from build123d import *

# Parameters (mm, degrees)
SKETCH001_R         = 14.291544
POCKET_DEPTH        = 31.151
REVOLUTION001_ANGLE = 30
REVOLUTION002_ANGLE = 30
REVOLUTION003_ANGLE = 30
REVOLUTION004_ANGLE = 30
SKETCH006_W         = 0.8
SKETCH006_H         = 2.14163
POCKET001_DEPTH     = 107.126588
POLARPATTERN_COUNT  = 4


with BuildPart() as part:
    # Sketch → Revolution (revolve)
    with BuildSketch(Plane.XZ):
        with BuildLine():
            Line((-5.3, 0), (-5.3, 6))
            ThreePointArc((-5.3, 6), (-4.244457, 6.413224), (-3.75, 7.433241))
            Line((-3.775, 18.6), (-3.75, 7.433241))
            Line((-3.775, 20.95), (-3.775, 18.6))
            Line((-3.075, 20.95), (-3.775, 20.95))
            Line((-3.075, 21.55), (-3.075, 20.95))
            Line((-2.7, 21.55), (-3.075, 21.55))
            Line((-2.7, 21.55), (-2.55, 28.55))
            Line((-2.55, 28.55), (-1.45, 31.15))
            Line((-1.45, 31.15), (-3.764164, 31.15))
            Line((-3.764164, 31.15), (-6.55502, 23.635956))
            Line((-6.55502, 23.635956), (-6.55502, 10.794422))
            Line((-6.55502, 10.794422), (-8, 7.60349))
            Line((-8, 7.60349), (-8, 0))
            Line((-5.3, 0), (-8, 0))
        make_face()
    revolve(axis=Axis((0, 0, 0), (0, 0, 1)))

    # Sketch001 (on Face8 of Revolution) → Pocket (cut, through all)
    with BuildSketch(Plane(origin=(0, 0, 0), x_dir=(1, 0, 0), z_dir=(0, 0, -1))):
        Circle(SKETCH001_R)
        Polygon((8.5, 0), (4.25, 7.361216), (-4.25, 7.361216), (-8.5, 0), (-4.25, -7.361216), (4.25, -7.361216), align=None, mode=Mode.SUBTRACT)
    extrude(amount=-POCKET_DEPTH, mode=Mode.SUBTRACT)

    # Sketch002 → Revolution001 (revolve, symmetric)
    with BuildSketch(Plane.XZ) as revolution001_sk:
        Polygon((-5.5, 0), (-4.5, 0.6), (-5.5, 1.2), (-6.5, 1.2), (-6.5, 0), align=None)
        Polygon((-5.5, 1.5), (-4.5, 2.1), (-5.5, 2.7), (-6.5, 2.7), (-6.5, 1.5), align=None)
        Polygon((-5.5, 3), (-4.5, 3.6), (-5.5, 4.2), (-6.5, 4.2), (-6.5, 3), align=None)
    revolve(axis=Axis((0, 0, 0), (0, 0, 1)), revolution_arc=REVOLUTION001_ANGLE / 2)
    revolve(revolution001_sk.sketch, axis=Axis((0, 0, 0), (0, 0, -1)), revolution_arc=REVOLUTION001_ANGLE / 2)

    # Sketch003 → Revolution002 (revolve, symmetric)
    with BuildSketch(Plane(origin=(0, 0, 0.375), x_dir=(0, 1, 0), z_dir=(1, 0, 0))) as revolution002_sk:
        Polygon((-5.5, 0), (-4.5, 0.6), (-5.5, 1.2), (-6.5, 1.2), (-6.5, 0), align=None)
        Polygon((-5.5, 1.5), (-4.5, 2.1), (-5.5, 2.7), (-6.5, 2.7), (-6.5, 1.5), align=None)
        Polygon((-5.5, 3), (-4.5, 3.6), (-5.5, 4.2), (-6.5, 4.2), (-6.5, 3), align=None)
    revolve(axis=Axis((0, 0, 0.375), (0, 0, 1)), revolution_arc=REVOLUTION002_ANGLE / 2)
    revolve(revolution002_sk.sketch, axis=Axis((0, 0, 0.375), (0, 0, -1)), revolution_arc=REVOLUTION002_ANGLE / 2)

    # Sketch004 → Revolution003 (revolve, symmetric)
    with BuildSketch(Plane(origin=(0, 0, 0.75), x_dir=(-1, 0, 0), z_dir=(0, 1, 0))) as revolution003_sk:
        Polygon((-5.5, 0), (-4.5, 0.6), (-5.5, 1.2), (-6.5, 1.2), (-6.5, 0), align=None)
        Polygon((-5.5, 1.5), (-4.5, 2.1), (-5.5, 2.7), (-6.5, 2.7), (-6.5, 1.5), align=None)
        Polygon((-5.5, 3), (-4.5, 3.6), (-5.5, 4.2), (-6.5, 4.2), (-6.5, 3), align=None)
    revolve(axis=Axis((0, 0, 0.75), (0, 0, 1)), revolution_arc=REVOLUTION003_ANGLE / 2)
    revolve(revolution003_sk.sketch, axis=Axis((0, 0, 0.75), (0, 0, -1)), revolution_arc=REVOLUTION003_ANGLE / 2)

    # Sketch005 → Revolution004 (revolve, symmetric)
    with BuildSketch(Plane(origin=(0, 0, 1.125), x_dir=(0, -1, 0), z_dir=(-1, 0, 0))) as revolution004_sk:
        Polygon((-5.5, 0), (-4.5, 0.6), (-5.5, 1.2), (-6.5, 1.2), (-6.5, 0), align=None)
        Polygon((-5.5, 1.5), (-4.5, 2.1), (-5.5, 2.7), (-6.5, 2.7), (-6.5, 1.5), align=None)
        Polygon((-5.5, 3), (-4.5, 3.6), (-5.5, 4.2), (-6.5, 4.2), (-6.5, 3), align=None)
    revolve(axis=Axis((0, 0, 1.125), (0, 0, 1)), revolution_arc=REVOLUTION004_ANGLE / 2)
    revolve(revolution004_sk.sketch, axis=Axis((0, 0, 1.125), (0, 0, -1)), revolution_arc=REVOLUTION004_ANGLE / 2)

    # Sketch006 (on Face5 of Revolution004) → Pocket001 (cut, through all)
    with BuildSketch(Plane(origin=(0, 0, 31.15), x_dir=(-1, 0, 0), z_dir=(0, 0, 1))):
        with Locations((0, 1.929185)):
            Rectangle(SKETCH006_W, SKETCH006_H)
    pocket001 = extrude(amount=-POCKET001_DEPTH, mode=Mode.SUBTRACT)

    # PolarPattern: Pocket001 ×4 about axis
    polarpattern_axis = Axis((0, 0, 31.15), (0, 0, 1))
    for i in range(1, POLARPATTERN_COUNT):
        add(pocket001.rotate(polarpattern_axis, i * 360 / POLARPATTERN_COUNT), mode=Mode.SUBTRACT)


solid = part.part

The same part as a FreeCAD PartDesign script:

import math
import FreeCAD as App
import Part
import Sketcher

V = App.Vector
Q = App.Units.Quantity


def add_polygon(sketch, points):
    """Adds a closed chain of lines whose ends are joined by coincident constraints."""
    first, n = sketch.GeometryCount, len(points)
    for a, b in zip(points, points[1:] + points[:1]):
        sketch.addGeometry(Part.LineSegment(App.Vector(*a, 0), App.Vector(*b, 0)), False)
    for i in range(n):
        sketch.addConstraint(Sketcher.Constraint("Coincident", first + i, 2, first + (i + 1) % n, 1))

doc = App.newDocument("Part")
body = doc.addObject("PartDesign::Body", "Body")

# Sketch on XZ plane
sketch1 = body.newObject("Sketcher::SketchObject", "Sketch")
sketch1.AttachmentSupport = (doc.getObject("XZ_Plane"), [""])
sketch1.MapMode = "FlatFace"
sketch1.addGeometry(Part.LineSegment(V(-5.3, 0, 0), V(-5.3, 6, 0)), False)
sketch1.addGeometry(Part.ArcOfCircle(Part.Circle(V(-5.3, 7.55, 0), V(0, 0, 1), 1.55), math.radians(-90), math.radians(-4)), False)
sketch1.addGeometry(Part.LineSegment(V(-3.75, 7.43, 0), V(-3.77, 18.6, 0)), False)
sketch1.addGeometry(Part.LineSegment(V(-3.77, 18.6, 0), V(-3.77, 20.95, 0)), False)
sketch1.addGeometry(Part.LineSegment(V(-3.77, 20.95, 0), V(-3.08, 20.95, 0)), False)
sketch1.addGeometry(Part.LineSegment(V(-3.08, 20.95, 0), V(-3.08, 21.55, 0)), False)
sketch1.addGeometry(Part.LineSegment(V(-3.08, 21.55, 0), V(-2.7, 21.55, 0)), False)
sketch1.addGeometry(Part.LineSegment(V(-2.7, 21.55, 0), V(-2.55, 28.55, 0)), False)
sketch1.addGeometry(Part.LineSegment(V(-2.55, 28.55, 0), V(-1.45, 31.15, 0)), False)
sketch1.addGeometry(Part.LineSegment(V(-1.45, 31.15, 0), V(-3.76, 31.15, 0)), False)
sketch1.addGeometry(Part.LineSegment(V(-3.76, 31.15, 0), V(-6.56, 23.64, 0)), False)
sketch1.addGeometry(Part.LineSegment(V(-6.56, 23.64, 0), V(-6.56, 10.79, 0)), False)
sketch1.addGeometry(Part.LineSegment(V(-6.56, 10.79, 0), V(-8, 7.6, 0)), False)
sketch1.addGeometry(Part.LineSegment(V(-8, 7.6, 0), V(-8, 0, 0)), False)
sketch1.addGeometry(Part.LineSegment(V(-8, 0, 0), V(-5.3, 0, 0)), False)
sketch1.addConstraint(Sketcher.Constraint("Coincident", 0, 2, 1, 1))
sketch1.addConstraint(Sketcher.Constraint("Coincident", 1, 2, 2, 1))
sketch1.addConstraint(Sketcher.Constraint("Coincident", 2, 2, 3, 1))
sketch1.addConstraint(Sketcher.Constraint("Coincident", 3, 2, 4, 1))
sketch1.addConstraint(Sketcher.Constraint("Coincident", 4, 2, 5, 1))
sketch1.addConstraint(Sketcher.Constraint("Coincident", 5, 2, 6, 1))
sketch1.addConstraint(Sketcher.Constraint("Coincident", 6, 2, 7, 1))
sketch1.addConstraint(Sketcher.Constraint("Coincident", 7, 2, 8, 1))
sketch1.addConstraint(Sketcher.Constraint("Coincident", 8, 2, 9, 1))
sketch1.addConstraint(Sketcher.Constraint("Coincident", 9, 2, 10, 1))
sketch1.addConstraint(Sketcher.Constraint("Coincident", 10, 2, 11, 1))
sketch1.addConstraint(Sketcher.Constraint("Coincident", 11, 2, 12, 1))
sketch1.addConstraint(Sketcher.Constraint("Coincident", 12, 2, 13, 1))
sketch1.addConstraint(Sketcher.Constraint("Coincident", 13, 2, 14, 1))
sketch1.addConstraint(Sketcher.Constraint("Coincident", 14, 2, 0, 1))
sketch1.addConstraint(Sketcher.Constraint("Vertical", 0))
sketch1.addConstraint(Sketcher.Constraint("Vertical", 3))
sketch1.addConstraint(Sketcher.Constraint("Horizontal", 4))
sketch1.addConstraint(Sketcher.Constraint("Vertical", 5))
sketch1.addConstraint(Sketcher.Constraint("Horizontal", 6))
sketch1.addConstraint(Sketcher.Constraint("Horizontal", 9))
sketch1.addConstraint(Sketcher.Constraint("Vertical", 11))
sketch1.addConstraint(Sketcher.Constraint("Vertical", 13))
sketch1.addConstraint(Sketcher.Constraint("Horizontal", 14))
sketch1.addConstraint(Sketcher.Constraint("PointOnObject", 13, 2, -1))
sketch1.addConstraint(Sketcher.Constraint("Vertical", 1, 3, 0, 2))
sketch1.addConstraint(Sketcher.Constraint("DistanceY", 0, 1, 0, 2, 6.0))
sketch1.addConstraint(Sketcher.Constraint("DistanceX", 4, 1, 4, 2, 0.7))
sketch1.addConstraint(Sketcher.Constraint("DistanceX", 14, 1, 14, 2, 2.7))
sketch1.addConstraint(Sketcher.Constraint("DistanceY", 5, 1, 5, 2, 0.6))
sketch1.addConstraint(Sketcher.Constraint("DistanceX", 12, 2, -1, 1, 8.0))
sketch1.addConstraint(Sketcher.Constraint("DistanceY", 6, 2, 7, 2, 7.0))
sketch1.addConstraint(Sketcher.Constraint("DistanceY", 3, 1, 3, 2, 2.35))
sketch1.addConstraint(Sketcher.Constraint("DistanceY", -1, 1, 2, 2, 18.6))
sketch1.addConstraint(Sketcher.Constraint("DistanceX", 6, 2, -1, 1, 2.7))
sketch1.addConstraint(Sketcher.Constraint("DistanceX", 7, 2, 8, 2, 1.1))
sketch1.addConstraint(Sketcher.Constraint("DistanceY", 7, 2, 8, 2, 2.6))
sketch1.addConstraint(Sketcher.Constraint("DistanceX", 6, 1, 6, 2, 0.375))
sketch1.addConstraint(Sketcher.Constraint("DistanceX", 1, 2, -1, 1, 3.75))
sketch1.addConstraint(Sketcher.Constraint("DistanceX", 7, 2, -1, 1, 2.55))
sketch1.addConstraint(Sketcher.Constraint("Radius", 1, 1.554756))
sketch1.addConstraint(Sketcher.Constraint("DistanceY", 13, 2, 13, 1, 7.60349))
sketch1.addConstraint(Sketcher.Constraint("Distance", 12, 3.502858))
sketch1.addConstraint(Sketcher.Constraint("DistanceX", 9, 2, 9, 1, 2.314164))
sketch1.addConstraint(Sketcher.Constraint("DistanceY", 11, 2, 11, 1, 12.841534))
sketch1.addConstraint(Sketcher.Constraint("DistanceX", 10, 2, -1, 1, 6.55502))
revolution = body.newObject("PartDesign::Revolution", "Revolution")
revolution.Profile = sketch1
revolution.ReferenceAxis = (sketch1, ["V_Axis"])
revolution.Angle = 360

# Sketch on XY plane
sketch2 = body.newObject("Sketcher::SketchObject", "Sketch001")
sketch2.AttachmentSupport = (doc.getObject("XY_Plane"), [""])
sketch2.MapMode = "FlatFace"
sketch2.addGeometry(Part.Circle(V(0, 0, 0), V(0, 0, 1), 14), False)  # 0
add_polygon(sketch2, [(4, -7), (8, 0), (4, 7), (-4, 7), (-8, 0), (-4, -7)])  # lines 1-6
sketch2.addConstraint(Sketcher.Constraint("Horizontal", 3))
sketch2.addConstraint(Sketcher.Constraint("Horizontal", 6))
sketch2.addConstraint(Sketcher.Constraint("Coincident", 0, 3, -1, 1))
sketch2.addConstraint(Sketcher.Constraint("Symmetric", 1, 2, 4, 2, -1, 1))
sketch2.addConstraint(Sketcher.Constraint("Symmetric", 2, 2, 5, 2, -1, 1))
sketch2.addConstraint(Sketcher.Constraint("PointOnObject", 1, 2, -1))
sketch2.addConstraint(Sketcher.Constraint("Parallel", 1, 4))
sketch2.addConstraint(Sketcher.Constraint("Vertical", 3, 2, 5, 2))
sketch2.addConstraint(Sketcher.Constraint("Angle", 1, Q("60 deg")))
sketch2.addConstraint(Sketcher.Constraint("DistanceX", 3, 2, 3, 1, 8.5))
sketch2.addConstraint(Sketcher.Constraint("DistanceX", 4, 2, 1, 2, 17.0))
sketch2.addConstraint(Sketcher.Constraint("Diameter", 0, 28.583088))
pocket1 = body.newObject("PartDesign::Pocket", "Pocket")
pocket1.Profile = sketch2
pocket1.Type = "ThroughAll"
pocket1.Reversed = True

# Sketch on XZ plane
sketch3 = body.newObject("Sketcher::SketchObject", "Sketch002")
sketch3.AttachmentSupport = (doc.getObject("XZ_Plane"), [""])
sketch3.MapMode = "FlatFace"
add_polygon(sketch3, [(-5.5, 0), (-4.5, 0.6), (-5.5, 1.2), (-6.5, 1.2), (-6.5, 0)])  # lines 0-4
add_polygon(sketch3, [(-5.5, 1.5), (-4.5, 2.1), (-5.5, 2.7), (-6.5, 2.7), (-6.5, 1.5)])  # lines 5-9
add_polygon(sketch3, [(-5.5, 3), (-4.5, 3.6), (-5.5, 4.2), (-6.5, 4.2), (-6.5, 3)])  # lines 10-14
sketch3.addConstraint(Sketcher.Constraint("Horizontal", 2))
sketch3.addConstraint(Sketcher.Constraint("Vertical", 3))
sketch3.addConstraint(Sketcher.Constraint("Horizontal", 4))
sketch3.addConstraint(Sketcher.Constraint("Horizontal", 7))
sketch3.addConstraint(Sketcher.Constraint("Vertical", 8))
sketch3.addConstraint(Sketcher.Constraint("Horizontal", 9))
sketch3.addConstraint(Sketcher.Constraint("Horizontal", 12))
sketch3.addConstraint(Sketcher.Constraint("Vertical", 13))
sketch3.addConstraint(Sketcher.Constraint("Horizontal", 14))
sketch3.addConstraint(Sketcher.Constraint("PointOnObject", 3, 2, -1))
sketch3.addConstraint(Sketcher.Constraint("Parallel", 0, 5))
sketch3.addConstraint(Sketcher.Constraint("Parallel", 1, 6))
sketch3.addConstraint(Sketcher.Constraint("Parallel", 5, 10))
sketch3.addConstraint(Sketcher.Constraint("Parallel", 6, 11))
sketch3.addConstraint(Sketcher.Constraint("Vertical", 1, 2, 4, 2))
sketch3.addConstraint(Sketcher.Constraint("Vertical", 0, 2, 5, 2))
sketch3.addConstraint(Sketcher.Constraint("Vertical", 4, 2, 6, 2))
sketch3.addConstraint(Sketcher.Constraint("Vertical", 3, 2, 7, 2))
sketch3.addConstraint(Sketcher.Constraint("Vertical", 6, 2, 9, 2))
sketch3.addConstraint(Sketcher.Constraint("Vertical", 5, 2, 10, 2))
sketch3.addConstraint(Sketcher.Constraint("Vertical", 9, 2, 11, 2))
sketch3.addConstraint(Sketcher.Constraint("Vertical", 8, 2, 12, 2))
sketch3.addConstraint(Sketcher.Constraint("Vertical", 11, 2, 14, 2))
sketch3.addConstraint(Sketcher.Constraint("Equal", 0, 1))
sketch3.addConstraint(Sketcher.Constraint("DistanceX", 2, 2, 2, 1, 1.0))
sketch3.addConstraint(Sketcher.Constraint("DistanceY", 3, 2, 3, 1, 1.2))
sketch3.addConstraint(Sketcher.Constraint("DistanceY", -1, 1, 13, 2, 3.0))
sketch3.addConstraint(Sketcher.Constraint("DistanceX", 1, 2, 0, 2, 1.0))
sketch3.addConstraint(Sketcher.Constraint("DistanceX", 0, 2, -1, 1, 4.5))
sketch3.addConstraint(Sketcher.Constraint("DistanceY", -1, 1, 5, 2, 2.1))
revolution2 = body.newObject("PartDesign::Revolution", "Revolution001")
revolution2.Profile = sketch3
revolution2.ReferenceAxis = (sketch3, ["V_Axis"])
revolution2.Angle = 15

# Sketch on XZ plane
sketch4 = body.newObject("Sketcher::SketchObject", "Sketch003")
sketch4.AttachmentSupport = (doc.getObject("XZ_Plane"), [""])
sketch4.MapMode = "FlatFace"
add_polygon(sketch4, [(-5.5, 0), (-4.5, 0.6), (-5.5, 1.2), (-6.5, 1.2), (-6.5, 0)])  # lines 0-4
add_polygon(sketch4, [(-5.5, 1.5), (-4.5, 2.1), (-5.5, 2.7), (-6.5, 2.7), (-6.5, 1.5)])  # lines 5-9
add_polygon(sketch4, [(-5.5, 3), (-4.5, 3.6), (-5.5, 4.2), (-6.5, 4.2), (-6.5, 3)])  # lines 10-14
sketch4.addConstraint(Sketcher.Constraint("Horizontal", 2))
sketch4.addConstraint(Sketcher.Constraint("Vertical", 3))
sketch4.addConstraint(Sketcher.Constraint("Horizontal", 4))
sketch4.addConstraint(Sketcher.Constraint("Horizontal", 7))
sketch4.addConstraint(Sketcher.Constraint("Vertical", 8))
sketch4.addConstraint(Sketcher.Constraint("Horizontal", 9))
sketch4.addConstraint(Sketcher.Constraint("Horizontal", 12))
sketch4.addConstraint(Sketcher.Constraint("Vertical", 13))
sketch4.addConstraint(Sketcher.Constraint("Horizontal", 14))
sketch4.addConstraint(Sketcher.Constraint("PointOnObject", 3, 2, -1))
sketch4.addConstraint(Sketcher.Constraint("Parallel", 0, 5))
sketch4.addConstraint(Sketcher.Constraint("Parallel", 1, 6))
sketch4.addConstraint(Sketcher.Constraint("Parallel", 5, 10))
sketch4.addConstraint(Sketcher.Constraint("Parallel", 6, 11))
sketch4.addConstraint(Sketcher.Constraint("Vertical", 1, 2, 4, 2))
sketch4.addConstraint(Sketcher.Constraint("Vertical", 0, 2, 5, 2))
sketch4.addConstraint(Sketcher.Constraint("Vertical", 4, 2, 6, 2))
sketch4.addConstraint(Sketcher.Constraint("Vertical", 3, 2, 7, 2))
sketch4.addConstraint(Sketcher.Constraint("Vertical", 6, 2, 9, 2))
sketch4.addConstraint(Sketcher.Constraint("Vertical", 5, 2, 10, 2))
sketch4.addConstraint(Sketcher.Constraint("Vertical", 9, 2, 11, 2))
sketch4.addConstraint(Sketcher.Constraint("Vertical", 8, 2, 12, 2))
sketch4.addConstraint(Sketcher.Constraint("Vertical", 11, 2, 14, 2))
sketch4.addConstraint(Sketcher.Constraint("Equal", 0, 1))
sketch4.addConstraint(Sketcher.Constraint("DistanceX", 2, 2, 2, 1, 1.0))
sketch4.addConstraint(Sketcher.Constraint("DistanceY", 3, 2, 3, 1, 1.2))
sketch4.addConstraint(Sketcher.Constraint("DistanceY", -1, 1, 13, 2, 3.0))
sketch4.addConstraint(Sketcher.Constraint("DistanceX", 1, 2, 0, 2, 1.0))
sketch4.addConstraint(Sketcher.Constraint("DistanceX", 0, 2, -1, 1, 4.5))
sketch4.addConstraint(Sketcher.Constraint("DistanceY", -1, 1, 5, 2, 2.1))
revolution3 = body.newObject("PartDesign::Revolution", "Revolution002")
revolution3.Profile = sketch4
revolution3.ReferenceAxis = (sketch4, ["V_Axis"])
revolution3.Angle = 15
revolution3.Reversed = True

# Sketch on YZ plane
sketch5 = body.newObject("Sketcher::SketchObject", "Sketch004")
sketch5.AttachmentSupport = (doc.getObject("YZ_Plane"), [""])
sketch5.MapMode = "FlatFace"
add_polygon(sketch5, [(-5.5, 0.4), (-4.5, 1), (-5.5, 1.6), (-6.5, 1.6), (-6.5, 0.4)])  # lines 0-4
add_polygon(sketch5, [(-5.5, 1.9), (-4.5, 2.5), (-5.5, 3.1), (-6.5, 3.1), (-6.5, 1.9)])  # lines 5-9
add_polygon(sketch5, [(-5.5, 3.4), (-4.5, 4), (-5.5, 4.6), (-6.5, 4.6), (-6.5, 3.4)])  # lines 10-14
sketch5.addConstraint(Sketcher.Constraint("Horizontal", 2))
sketch5.addConstraint(Sketcher.Constraint("Vertical", 3))
sketch5.addConstraint(Sketcher.Constraint("Horizontal", 4))
sketch5.addConstraint(Sketcher.Constraint("Horizontal", 7))
sketch5.addConstraint(Sketcher.Constraint("Vertical", 8))
sketch5.addConstraint(Sketcher.Constraint("Horizontal", 9))
sketch5.addConstraint(Sketcher.Constraint("Horizontal", 12))
sketch5.addConstraint(Sketcher.Constraint("Vertical", 13))
sketch5.addConstraint(Sketcher.Constraint("Horizontal", 14))
sketch5.addConstraint(Sketcher.Constraint("Parallel", 0, 5))
sketch5.addConstraint(Sketcher.Constraint("Parallel", 1, 6))
sketch5.addConstraint(Sketcher.Constraint("Parallel", 5, 10))
sketch5.addConstraint(Sketcher.Constraint("Parallel", 6, 11))
sketch5.addConstraint(Sketcher.Constraint("Vertical", 1, 2, 4, 2))
sketch5.addConstraint(Sketcher.Constraint("Vertical", 0, 2, 5, 2))
sketch5.addConstraint(Sketcher.Constraint("Vertical", 4, 2, 6, 2))
sketch5.addConstraint(Sketcher.Constraint("Vertical", 3, 2, 7, 2))
sketch5.addConstraint(Sketcher.Constraint("Vertical", 6, 2, 9, 2))
sketch5.addConstraint(Sketcher.Constraint("Vertical", 5, 2, 10, 2))
sketch5.addConstraint(Sketcher.Constraint("Vertical", 9, 2, 11, 2))
sketch5.addConstraint(Sketcher.Constraint("Vertical", 8, 2, 12, 2))
sketch5.addConstraint(Sketcher.Constraint("Vertical", 11, 2, 14, 2))
sketch5.addConstraint(Sketcher.Constraint("Equal", 0, 1))
sketch5.addConstraint(Sketcher.Constraint("DistanceX", 2, 2, 2, 1, 1.0))
sketch5.addConstraint(Sketcher.Constraint("DistanceY", 3, 2, 3, 1, 1.2))
sketch5.addConstraint(Sketcher.Constraint("DistanceX", 1, 2, 0, 2, 1.0))
sketch5.addConstraint(Sketcher.Constraint("DistanceX", 0, 2, -1, 1, 4.5))
sketch5.addConstraint(Sketcher.Constraint("DistanceY", 1, 2, 5, 2, 0.9))
sketch5.addConstraint(Sketcher.Constraint("DistanceY", 6, 2, 10, 2, 0.9))
sketch5.addConstraint(Sketcher.Constraint("DistanceY", -1, 1, 0, 2, 0.975))
revolution4 = body.newObject("PartDesign::Revolution", "Revolution003")
revolution4.Profile = sketch5
revolution4.ReferenceAxis = (sketch5, ["V_Axis"])
revolution4.Angle = 15

# Sketch on YZ plane
sketch6 = body.newObject("Sketcher::SketchObject", "Sketch005")
sketch6.AttachmentSupport = (doc.getObject("YZ_Plane"), [""])
sketch6.MapMode = "FlatFace"
add_polygon(sketch6, [(-5.5, 0.4), (-4.5, 1), (-5.5, 1.6), (-6.5, 1.6), (-6.5, 0.4)])  # lines 0-4
add_polygon(sketch6, [(-5.5, 1.9), (-4.5, 2.5), (-5.5, 3.1), (-6.5, 3.1), (-6.5, 1.9)])  # lines 5-9
add_polygon(sketch6, [(-5.5, 3.4), (-4.5, 4), (-5.5, 4.6), (-6.5, 4.6), (-6.5, 3.4)])  # lines 10-14
sketch6.addConstraint(Sketcher.Constraint("Horizontal", 2))
sketch6.addConstraint(Sketcher.Constraint("Vertical", 3))
sketch6.addConstraint(Sketcher.Constraint("Horizontal", 4))
sketch6.addConstraint(Sketcher.Constraint("Horizontal", 7))
sketch6.addConstraint(Sketcher.Constraint("Vertical", 8))
sketch6.addConstraint(Sketcher.Constraint("Horizontal", 9))
sketch6.addConstraint(Sketcher.Constraint("Horizontal", 12))
sketch6.addConstraint(Sketcher.Constraint("Vertical", 13))
sketch6.addConstraint(Sketcher.Constraint("Horizontal", 14))
sketch6.addConstraint(Sketcher.Constraint("Parallel", 0, 5))
sketch6.addConstraint(Sketcher.Constraint("Parallel", 1, 6))
sketch6.addConstraint(Sketcher.Constraint("Parallel", 5, 10))
sketch6.addConstraint(Sketcher.Constraint("Parallel", 6, 11))
sketch6.addConstraint(Sketcher.Constraint("Vertical", 1, 2, 4, 2))
sketch6.addConstraint(Sketcher.Constraint("Vertical", 0, 2, 5, 2))
sketch6.addConstraint(Sketcher.Constraint("Vertical", 4, 2, 6, 2))
sketch6.addConstraint(Sketcher.Constraint("Vertical", 3, 2, 7, 2))
sketch6.addConstraint(Sketcher.Constraint("Vertical", 6, 2, 9, 2))
sketch6.addConstraint(Sketcher.Constraint("Vertical", 5, 2, 10, 2))
sketch6.addConstraint(Sketcher.Constraint("Vertical", 9, 2, 11, 2))
sketch6.addConstraint(Sketcher.Constraint("Vertical", 8, 2, 12, 2))
sketch6.addConstraint(Sketcher.Constraint("Vertical", 11, 2, 14, 2))
sketch6.addConstraint(Sketcher.Constraint("Equal", 0, 1))
sketch6.addConstraint(Sketcher.Constraint("DistanceX", 2, 2, 2, 1, 1.0))
sketch6.addConstraint(Sketcher.Constraint("DistanceY", 3, 2, 3, 1, 1.2))
sketch6.addConstraint(Sketcher.Constraint("DistanceX", 1, 2, 0, 2, 1.0))
sketch6.addConstraint(Sketcher.Constraint("DistanceX", 0, 2, -1, 1, 4.5))
sketch6.addConstraint(Sketcher.Constraint("DistanceY", 1, 2, 5, 2, 0.9))
sketch6.addConstraint(Sketcher.Constraint("DistanceY", 6, 2, 10, 2, 0.9))
sketch6.addConstraint(Sketcher.Constraint("DistanceY", -1, 1, 0, 2, 0.975))
revolution5 = body.newObject("PartDesign::Revolution", "Revolution004")
revolution5.Profile = sketch6
revolution5.ReferenceAxis = (sketch6, ["V_Axis"])
revolution5.Angle = 15
revolution5.Reversed = True

# Sketch on XZ plane
sketch7 = body.newObject("Sketcher::SketchObject", "Sketch006")
sketch7.AttachmentSupport = (doc.getObject("XZ_Plane"), [""])
sketch7.MapMode = "FlatFace"
add_polygon(sketch7, [(5.5, 0.8), (4.5, 1.4), (5.5, 1.9), (6.5, 1.9), (6.5, 0.8)])  # lines 0-4
add_polygon(sketch7, [(5.5, 2.2), (4.5, 2.9), (5.5, 3.5), (6.5, 3.5), (6.5, 2.2)])  # lines 5-9
add_polygon(sketch7, [(5.5, 3.8), (4.5, 4.3), (5.5, 5), (6.5, 5), (6.5, 3.8)])  # lines 10-14
sketch7.addConstraint(Sketcher.Constraint("Horizontal", 2))
sketch7.addConstraint(Sketcher.Constraint("Vertical", 3))
sketch7.addConstraint(Sketcher.Constraint("Horizontal", 4))
sketch7.addConstraint(Sketcher.Constraint("Horizontal", 7))
sketch7.addConstraint(Sketcher.Constraint("Vertical", 8))
sketch7.addConstraint(Sketcher.Constraint("Horizontal", 9))
sketch7.addConstraint(Sketcher.Constraint("Horizontal", 12))
sketch7.addConstraint(Sketcher.Constraint("Vertical", 13))
sketch7.addConstraint(Sketcher.Constraint("Horizontal", 14))
sketch7.addConstraint(Sketcher.Constraint("Parallel", 0, 5))
sketch7.addConstraint(Sketcher.Constraint("Parallel", 1, 6))
sketch7.addConstraint(Sketcher.Constraint("Parallel", 5, 10))
sketch7.addConstraint(Sketcher.Constraint("Parallel", 6, 11))
sketch7.addConstraint(Sketcher.Constraint("Vertical", 1, 2, 4, 2))
sketch7.addConstraint(Sketcher.Constraint("Vertical", 0, 2, 5, 2))
sketch7.addConstraint(Sketcher.Constraint("Vertical", 4, 2, 6, 2))
sketch7.addConstraint(Sketcher.Constraint("Vertical", 3, 2, 7, 2))
sketch7.addConstraint(Sketcher.Constraint("Vertical", 6, 2, 9, 2))
sketch7.addConstraint(Sketcher.Constraint("Vertical", 5, 2, 10, 2))
sketch7.addConstraint(Sketcher.Constraint("Vertical", 9, 2, 11, 2))
sketch7.addConstraint(Sketcher.Constraint("Vertical", 8, 2, 12, 2))
sketch7.addConstraint(Sketcher.Constraint("Vertical", 11, 2, 14, 2))
sketch7.addConstraint(Sketcher.Constraint("Equal", 0, 1))
sketch7.addConstraint(Sketcher.Constraint("DistanceX", 2, 1, 2, 2, 1.0))
sketch7.addConstraint(Sketcher.Constraint("DistanceY", 3, 2, 3, 1, 1.2))
sketch7.addConstraint(Sketcher.Constraint("DistanceX", 0, 2, 1, 2, 1.0))
sketch7.addConstraint(Sketcher.Constraint("DistanceX", -1, 1, 0, 2, 4.5))
sketch7.addConstraint(Sketcher.Constraint("DistanceY", 1, 2, 5, 2, 0.9))
sketch7.addConstraint(Sketcher.Constraint("DistanceY", 6, 2, 10, 2, 0.9))
sketch7.addConstraint(Sketcher.Constraint("DistanceY", -1, 1, 0, 2, 1.35))
revolution6 = body.newObject("PartDesign::Revolution", "Revolution005")
revolution6.Profile = sketch7
revolution6.ReferenceAxis = (sketch7, ["V_Axis"])
revolution6.Angle = 15

# Sketch on XZ plane
sketch8 = body.newObject("Sketcher::SketchObject", "Sketch007")
sketch8.AttachmentSupport = (doc.getObject("XZ_Plane"), [""])
sketch8.MapMode = "FlatFace"
add_polygon(sketch8, [(5.5, 0.8), (4.5, 1.4), (5.5, 1.9), (6.5, 1.9), (6.5, 0.8)])  # lines 0-4
add_polygon(sketch8, [(5.5, 2.2), (4.5, 2.9), (5.5, 3.5), (6.5, 3.5), (6.5, 2.2)])  # lines 5-9
add_polygon(sketch8, [(5.5, 3.8), (4.5, 4.3), (5.5, 5), (6.5, 5), (6.5, 3.8)])  # lines 10-14
sketch8.addConstraint(Sketcher.Constraint("Horizontal", 2))
sketch8.addConstraint(Sketcher.Constraint("Vertical", 3))
sketch8.addConstraint(Sketcher.Constraint("Horizontal", 4))
sketch8.addConstraint(Sketcher.Constraint("Horizontal", 7))
sketch8.addConstraint(Sketcher.Constraint("Vertical", 8))
sketch8.addConstraint(Sketcher.Constraint("Horizontal", 9))
sketch8.addConstraint(Sketcher.Constraint("Horizontal", 12))
sketch8.addConstraint(Sketcher.Constraint("Vertical", 13))
sketch8.addConstraint(Sketcher.Constraint("Horizontal", 14))
sketch8.addConstraint(Sketcher.Constraint("Parallel", 0, 5))
sketch8.addConstraint(Sketcher.Constraint("Parallel", 1, 6))
sketch8.addConstraint(Sketcher.Constraint("Parallel", 5, 10))
sketch8.addConstraint(Sketcher.Constraint("Parallel", 6, 11))
sketch8.addConstraint(Sketcher.Constraint("Vertical", 1, 2, 4, 2))
sketch8.addConstraint(Sketcher.Constraint("Vertical", 0, 2, 5, 2))
sketch8.addConstraint(Sketcher.Constraint("Vertical", 4, 2, 6, 2))
sketch8.addConstraint(Sketcher.Constraint("Vertical", 3, 2, 7, 2))
sketch8.addConstraint(Sketcher.Constraint("Vertical", 6, 2, 9, 2))
sketch8.addConstraint(Sketcher.Constraint("Vertical", 5, 2, 10, 2))
sketch8.addConstraint(Sketcher.Constraint("Vertical", 9, 2, 11, 2))
sketch8.addConstraint(Sketcher.Constraint("Vertical", 8, 2, 12, 2))
sketch8.addConstraint(Sketcher.Constraint("Vertical", 11, 2, 14, 2))
sketch8.addConstraint(Sketcher.Constraint("Equal", 0, 1))
sketch8.addConstraint(Sketcher.Constraint("DistanceX", 2, 1, 2, 2, 1.0))
sketch8.addConstraint(Sketcher.Constraint("DistanceY", 3, 2, 3, 1, 1.2))
sketch8.addConstraint(Sketcher.Constraint("DistanceX", 0, 2, 1, 2, 1.0))
sketch8.addConstraint(Sketcher.Constraint("DistanceX", -1, 1, 0, 2, 4.5))
sketch8.addConstraint(Sketcher.Constraint("DistanceY", 1, 2, 5, 2, 0.9))
sketch8.addConstraint(Sketcher.Constraint("DistanceY", 6, 2, 10, 2, 0.9))
sketch8.addConstraint(Sketcher.Constraint("DistanceY", -1, 1, 0, 2, 1.35))
revolution7 = body.newObject("PartDesign::Revolution", "Revolution006")
revolution7.Profile = sketch8
revolution7.ReferenceAxis = (sketch8, ["V_Axis"])
revolution7.Angle = 15
revolution7.Reversed = True

# Sketch on YZ plane
sketch9 = body.newObject("Sketcher::SketchObject", "Sketch008")
sketch9.AttachmentSupport = (doc.getObject("YZ_Plane"), [""])
sketch9.MapMode = "FlatFace"
add_polygon(sketch9, [(5.5, 1.1), (4.5, 1.7), (5.5, 2.3), (6.5, 2.3), (6.5, 1.1)])  # lines 0-4
add_polygon(sketch9, [(5.5, 2.6), (4.5, 3.2), (5.5, 3.8), (6.5, 3.8), (6.5, 2.6)])  # lines 5-9
add_polygon(sketch9, [(5.5, 4.1), (4.5, 4.7), (5.5, 5.3), (6.5, 5.3), (6.5, 4.1)])  # lines 10-14
sketch9.addConstraint(Sketcher.Constraint("Horizontal", 2))
sketch9.addConstraint(Sketcher.Constraint("Vertical", 3))
sketch9.addConstraint(Sketcher.Constraint("Horizontal", 4))
sketch9.addConstraint(Sketcher.Constraint("Horizontal", 7))
sketch9.addConstraint(Sketcher.Constraint("Vertical", 8))
sketch9.addConstraint(Sketcher.Constraint("Horizontal", 9))
sketch9.addConstraint(Sketcher.Constraint("Horizontal", 12))
sketch9.addConstraint(Sketcher.Constraint("Vertical", 13))
sketch9.addConstraint(Sketcher.Constraint("Horizontal", 14))
sketch9.addConstraint(Sketcher.Constraint("Parallel", 0, 5))
sketch9.addConstraint(Sketcher.Constraint("Parallel", 1, 6))
sketch9.addConstraint(Sketcher.Constraint("Parallel", 5, 10))
sketch9.addConstraint(Sketcher.Constraint("Parallel", 6, 11))
sketch9.addConstraint(Sketcher.Constraint("Vertical", 1, 2, 4, 2))
sketch9.addConstraint(Sketcher.Constraint("Vertical", 0, 2, 5, 2))
sketch9.addConstraint(Sketcher.Constraint("Vertical", 4, 2, 6, 2))
sketch9.addConstraint(Sketcher.Constraint("Vertical", 3, 2, 7, 2))
sketch9.addConstraint(Sketcher.Constraint("Vertical", 6, 2, 9, 2))
sketch9.addConstraint(Sketcher.Constraint("Vertical", 5, 2, 10, 2))
sketch9.addConstraint(Sketcher.Constraint("Vertical", 9, 2, 11, 2))
sketch9.addConstraint(Sketcher.Constraint("Vertical", 8, 2, 12, 2))
sketch9.addConstraint(Sketcher.Constraint("Vertical", 11, 2, 14, 2))
sketch9.addConstraint(Sketcher.Constraint("Equal", 0, 1))
sketch9.addConstraint(Sketcher.Constraint("DistanceX", 2, 1, 2, 2, 1.0))
sketch9.addConstraint(Sketcher.Constraint("DistanceY", 3, 2, 3, 1, 1.2))
sketch9.addConstraint(Sketcher.Constraint("DistanceX", 0, 2, 1, 2, 1.0))
sketch9.addConstraint(Sketcher.Constraint("DistanceX", -1, 1, 0, 2, 4.5))
sketch9.addConstraint(Sketcher.Constraint("DistanceY", 1, 2, 5, 2, 0.9))
sketch9.addConstraint(Sketcher.Constraint("DistanceY", 6, 2, 10, 2, 0.9))
sketch9.addConstraint(Sketcher.Constraint("DistanceY", -1, 1, 0, 2, 1.725))
revolution8 = body.newObject("PartDesign::Revolution", "Revolution007")
revolution8.Profile = sketch9
revolution8.ReferenceAxis = (sketch9, ["V_Axis"])
revolution8.Angle = 15

# Sketch on YZ plane
sketch10 = body.newObject("Sketcher::SketchObject", "Sketch009")
sketch10.AttachmentSupport = (doc.getObject("YZ_Plane"), [""])
sketch10.MapMode = "FlatFace"
add_polygon(sketch10, [(5.5, 1.1), (4.5, 1.7), (5.5, 2.3), (6.5, 2.3), (6.5, 1.1)])  # lines 0-4
add_polygon(sketch10, [(5.5, 2.6), (4.5, 3.2), (5.5, 3.8), (6.5, 3.8), (6.5, 2.6)])  # lines 5-9
add_polygon(sketch10, [(5.5, 4.1), (4.5, 4.7), (5.5, 5.3), (6.5, 5.3), (6.5, 4.1)])  # lines 10-14
sketch10.addConstraint(Sketcher.Constraint("Horizontal", 2))
sketch10.addConstraint(Sketcher.Constraint("Vertical", 3))
sketch10.addConstraint(Sketcher.Constraint("Horizontal", 4))
sketch10.addConstraint(Sketcher.Constraint("Horizontal", 7))
sketch10.addConstraint(Sketcher.Constraint("Vertical", 8))
sketch10.addConstraint(Sketcher.Constraint("Horizontal", 9))
sketch10.addConstraint(Sketcher.Constraint("Horizontal", 12))
sketch10.addConstraint(Sketcher.Constraint("Vertical", 13))
sketch10.addConstraint(Sketcher.Constraint("Horizontal", 14))
sketch10.addConstraint(Sketcher.Constraint("Parallel", 0, 5))
sketch10.addConstraint(Sketcher.Constraint("Parallel", 1, 6))
sketch10.addConstraint(Sketcher.Constraint("Parallel", 5, 10))
sketch10.addConstraint(Sketcher.Constraint("Parallel", 6, 11))
sketch10.addConstraint(Sketcher.Constraint("Vertical", 1, 2, 4, 2))
sketch10.addConstraint(Sketcher.Constraint("Vertical", 0, 2, 5, 2))
sketch10.addConstraint(Sketcher.Constraint("Vertical", 4, 2, 6, 2))
sketch10.addConstraint(Sketcher.Constraint("Vertical", 3, 2, 7, 2))
sketch10.addConstraint(Sketcher.Constraint("Vertical", 6, 2, 9, 2))
sketch10.addConstraint(Sketcher.Constraint("Vertical", 5, 2, 10, 2))
sketch10.addConstraint(Sketcher.Constraint("Vertical", 9, 2, 11, 2))
sketch10.addConstraint(Sketcher.Constraint("Vertical", 8, 2, 12, 2))
sketch10.addConstraint(Sketcher.Constraint("Vertical", 11, 2, 14, 2))
sketch10.addConstraint(Sketcher.Constraint("Equal", 0, 1))
sketch10.addConstraint(Sketcher.Constraint("DistanceX", 2, 1, 2, 2, 1.0))
sketch10.addConstraint(Sketcher.Constraint("DistanceY", 3, 2, 3, 1, 1.2))
sketch10.addConstraint(Sketcher.Constraint("DistanceX", 0, 2, 1, 2, 1.0))
sketch10.addConstraint(Sketcher.Constraint("DistanceX", -1, 1, 0, 2, 4.5))
sketch10.addConstraint(Sketcher.Constraint("DistanceY", 1, 2, 5, 2, 0.9))
sketch10.addConstraint(Sketcher.Constraint("DistanceY", 6, 2, 10, 2, 0.9))
sketch10.addConstraint(Sketcher.Constraint("DistanceY", -1, 1, 0, 2, 1.725))
revolution9 = body.newObject("PartDesign::Revolution", "Revolution008")
revolution9.Profile = sketch10
revolution9.ReferenceAxis = (sketch10, ["V_Axis"])
revolution9.Angle = 15
revolution9.Reversed = True

# Sketch on XY plane
sketch11 = body.newObject("Sketcher::SketchObject", "Sketch010")
sketch11.AttachmentSupport = (doc.getObject("XY_Plane"), [""])
sketch11.MapMode = "FlatFace"
sketch11.AttachmentOffset = App.Placement(V(0, 0, 31.15), App.Rotation())
add_polygon(sketch11, [(0.4, -3), (0.4, -0.9), (-0.4, -0.9), (-0.4, -3)])  # lines 0-3
sketch11.addConstraint(Sketcher.Constraint("Vertical", 0))
sketch11.addConstraint(Sketcher.Constraint("Horizontal", 1))
sketch11.addConstraint(Sketcher.Constraint("Vertical", 2))
sketch11.addConstraint(Sketcher.Constraint("Horizontal", 3))
sketch11.addConstraint(Sketcher.Constraint("DistanceX", 1, 2, 1, 1, 0.8))
sketch11.addConstraint(Sketcher.Constraint("DistanceY", 2, 2, -1, 1, 3.0))
sketch11.addConstraint(Sketcher.Constraint("DistanceX", -1, 1, 0, 2, 0.4))
sketch11.addConstraint(Sketcher.Constraint("DistanceY", 0, 1, 0, 2, 2.14163))
pocket2 = body.newObject("PartDesign::Pocket", "Pocket001")
pocket2.Profile = sketch11
pocket2.Type = "ThroughAll"
doc.recompute()

polarpattern = body.newObject("PartDesign::PolarPattern", "PolarPattern")
polarpattern.Originals = [pocket2]
polarpattern.Axis = (doc.getObject("Z_Axis"), [""])
polarpattern.Angle = 360
polarpattern.Occurrences = 4
body.Tip = polarpattern

doc.recompute()
